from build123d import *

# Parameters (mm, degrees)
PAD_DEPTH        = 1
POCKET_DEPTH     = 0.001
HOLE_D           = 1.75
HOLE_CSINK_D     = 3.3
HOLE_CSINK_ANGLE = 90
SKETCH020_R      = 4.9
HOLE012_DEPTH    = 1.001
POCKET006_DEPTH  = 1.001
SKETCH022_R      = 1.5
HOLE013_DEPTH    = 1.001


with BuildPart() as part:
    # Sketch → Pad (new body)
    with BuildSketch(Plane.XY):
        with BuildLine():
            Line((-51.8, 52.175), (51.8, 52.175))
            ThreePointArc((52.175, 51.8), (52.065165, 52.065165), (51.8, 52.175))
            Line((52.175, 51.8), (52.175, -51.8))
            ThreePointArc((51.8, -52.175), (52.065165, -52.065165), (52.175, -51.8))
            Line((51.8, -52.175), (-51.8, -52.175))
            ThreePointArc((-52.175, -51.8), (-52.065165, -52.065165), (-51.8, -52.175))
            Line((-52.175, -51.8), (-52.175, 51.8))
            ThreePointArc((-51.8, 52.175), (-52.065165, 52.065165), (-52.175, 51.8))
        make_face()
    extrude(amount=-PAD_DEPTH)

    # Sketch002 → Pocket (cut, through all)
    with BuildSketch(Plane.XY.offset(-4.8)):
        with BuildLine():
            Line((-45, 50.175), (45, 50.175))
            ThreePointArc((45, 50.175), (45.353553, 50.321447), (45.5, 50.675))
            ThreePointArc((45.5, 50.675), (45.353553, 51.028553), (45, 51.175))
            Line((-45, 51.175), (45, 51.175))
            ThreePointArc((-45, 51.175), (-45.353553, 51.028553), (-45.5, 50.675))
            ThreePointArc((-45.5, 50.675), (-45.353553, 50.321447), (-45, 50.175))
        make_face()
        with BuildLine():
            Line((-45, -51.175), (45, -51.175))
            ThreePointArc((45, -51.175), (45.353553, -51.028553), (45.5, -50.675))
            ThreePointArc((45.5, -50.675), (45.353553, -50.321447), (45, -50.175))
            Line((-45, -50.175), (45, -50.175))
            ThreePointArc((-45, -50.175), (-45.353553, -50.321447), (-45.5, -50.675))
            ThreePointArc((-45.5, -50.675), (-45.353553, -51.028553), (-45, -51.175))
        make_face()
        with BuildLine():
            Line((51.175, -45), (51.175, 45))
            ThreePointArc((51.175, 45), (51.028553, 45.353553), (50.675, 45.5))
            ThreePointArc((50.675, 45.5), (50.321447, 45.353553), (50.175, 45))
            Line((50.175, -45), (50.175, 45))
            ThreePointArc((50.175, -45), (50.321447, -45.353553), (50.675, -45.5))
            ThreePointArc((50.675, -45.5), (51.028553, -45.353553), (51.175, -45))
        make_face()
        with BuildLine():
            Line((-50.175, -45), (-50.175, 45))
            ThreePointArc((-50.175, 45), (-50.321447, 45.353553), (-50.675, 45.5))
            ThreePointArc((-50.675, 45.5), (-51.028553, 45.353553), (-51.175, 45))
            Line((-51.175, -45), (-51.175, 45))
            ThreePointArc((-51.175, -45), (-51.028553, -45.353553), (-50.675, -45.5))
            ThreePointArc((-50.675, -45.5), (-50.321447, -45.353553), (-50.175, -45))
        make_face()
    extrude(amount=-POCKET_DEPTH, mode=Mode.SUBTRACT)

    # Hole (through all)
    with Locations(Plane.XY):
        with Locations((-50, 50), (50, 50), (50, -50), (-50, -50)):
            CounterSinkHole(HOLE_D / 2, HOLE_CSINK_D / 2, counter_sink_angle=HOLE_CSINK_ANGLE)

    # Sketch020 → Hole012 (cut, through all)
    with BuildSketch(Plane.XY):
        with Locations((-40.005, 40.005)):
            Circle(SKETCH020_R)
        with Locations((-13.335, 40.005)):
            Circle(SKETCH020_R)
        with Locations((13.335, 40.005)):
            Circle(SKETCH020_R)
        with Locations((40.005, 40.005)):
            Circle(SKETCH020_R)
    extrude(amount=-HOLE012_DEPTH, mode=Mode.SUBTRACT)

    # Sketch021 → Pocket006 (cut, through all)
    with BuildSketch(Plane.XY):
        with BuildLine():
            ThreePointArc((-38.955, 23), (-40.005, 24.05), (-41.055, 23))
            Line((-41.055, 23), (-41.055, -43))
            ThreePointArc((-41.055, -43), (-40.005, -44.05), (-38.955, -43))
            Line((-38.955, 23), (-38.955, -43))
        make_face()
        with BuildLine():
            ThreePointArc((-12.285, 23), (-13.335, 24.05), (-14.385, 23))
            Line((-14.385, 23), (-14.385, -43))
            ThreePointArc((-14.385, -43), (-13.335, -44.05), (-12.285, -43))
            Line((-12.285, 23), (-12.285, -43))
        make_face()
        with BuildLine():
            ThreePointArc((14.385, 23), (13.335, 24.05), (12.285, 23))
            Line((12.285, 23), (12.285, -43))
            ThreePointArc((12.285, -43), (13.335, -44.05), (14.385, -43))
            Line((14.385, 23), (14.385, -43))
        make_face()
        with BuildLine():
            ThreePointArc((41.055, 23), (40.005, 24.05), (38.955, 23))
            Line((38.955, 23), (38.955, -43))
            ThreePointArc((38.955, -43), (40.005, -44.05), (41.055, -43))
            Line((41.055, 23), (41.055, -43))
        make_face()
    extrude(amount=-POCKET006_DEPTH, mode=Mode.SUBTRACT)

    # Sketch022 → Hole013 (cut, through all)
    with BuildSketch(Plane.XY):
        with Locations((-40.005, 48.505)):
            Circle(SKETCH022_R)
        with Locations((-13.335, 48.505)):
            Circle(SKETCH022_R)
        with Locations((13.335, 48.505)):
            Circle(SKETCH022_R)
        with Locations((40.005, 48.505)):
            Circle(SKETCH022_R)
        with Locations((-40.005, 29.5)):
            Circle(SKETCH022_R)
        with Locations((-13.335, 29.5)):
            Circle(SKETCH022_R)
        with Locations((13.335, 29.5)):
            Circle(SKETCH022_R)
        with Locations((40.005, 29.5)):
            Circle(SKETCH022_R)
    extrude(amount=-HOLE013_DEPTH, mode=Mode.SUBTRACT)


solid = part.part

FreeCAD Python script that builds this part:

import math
import FreeCAD as App
import Part
import Sketcher
from FreeCAD import Vector
Q = App.Units.Quantity

doc = App.newDocument("Part")
body = doc.addObject("PartDesign::Body", "Body")

# Sketch on XY plane
sketch1 = doc.addObject("Sketcher::SketchObject", "Sketch")
body.addObject(sketch1)
sketch1.AttachmentSupport = (doc.XY_Plane, [""])
sketch1.MapMode = "FlatFace"
sketch1.addGeometry([
    Part.LineSegment(Vector(51.8, 52.175, 0), Vector(-51.8, 52.175, 0)),  # 0
    Part.ArcOfCircle(Part.Circle(Vector(-51.8, 51.8, 0), Vector(0, 0, 1), 0.375), math.radians(90.000022), math.radians(179.999978)),  # 1
    Part.LineSegment(Vector(-52.175, 51.8, 0), Vector(-52.175, -51.8, 0)),  # 2
    Part.ArcOfCircle(Part.Circle(Vector(-51.8, -51.8, 0), Vector(0, 0, 1), 0.375), math.radians(-179.999978), math.radians(-90.000022)),  # 3
    Part.LineSegment(Vector(-51.8, -52.175, 0), Vector(51.8, -52.175, 0)),  # 4
    Part.ArcOfCircle(Part.Circle(Vector(51.8, -51.8, 0), Vector(0, 0, 1), 0.375), math.radians(-89.999978), math.radians(-0.000022)),  # 5
    Part.LineSegment(Vector(52.175, -51.8, 0), Vector(52.175, 51.8, 0)),  # 6
    Part.ArcOfCircle(Part.Circle(Vector(51.8, 51.8, 0), Vector(0, 0, 1), 0.375), math.radians(0.000022), math.radians(89.999978)),  # 7
], False)
sketch1.addConstraint([
    Sketcher.Constraint("Tangent", 0, 2, 1, 1),
    Sketcher.Constraint("Tangent", 1, 2, 2, 1),
    Sketcher.Constraint("Tangent", 2, 2, 3, 1),
    Sketcher.Constraint("Tangent", 3, 2, 4, 1),
    Sketcher.Constraint("Tangent", 4, 2, 5, 1),
    Sketcher.Constraint("Tangent", 5, 2, 6, 1),
    Sketcher.Constraint("Tangent", 6, 2, 7, 1),
    Sketcher.Constraint("Tangent", 7, 2, 0, 1),
    Sketcher.Constraint("Horizontal", 0),
    Sketcher.Constraint("Vertical", 2),
    Sketcher.Constraint("Horizontal", 4),
    Sketcher.Constraint("Vertical", 6),
    Sketcher.Constraint("Equal", 1, 3),
    Sketcher.Constraint("Equal", 3, 5),
    Sketcher.Constraint("Equal", 5, 7),
    Sketcher.Constraint("Symmetric", 1, 3, 5, 3, -1, 1),
    Sketcher.Constraint("Equal", 4, 2),
    Sketcher.Constraint("DistanceX", 0, 2, 0, 1, Q("103.6 mm")),
    Sketcher.Constraint("Radius", 1, Q("0.375 mm")),
])
pad1 = doc.addObject("PartDesign::Pad", "Pad")
body.addObject(pad1)
pad1.Profile = sketch1
pad1.Length = 1
pad1.Reversed = True

# Sketch on XY plane
sketch2 = doc.addObject("Sketcher::SketchObject", "Sketch001")
body.addObject(sketch2)
sketch2.AttachmentSupport = (doc.XY_Plane, [""])
sketch2.MapMode = "FlatFace"
sketch2.AttachmentOffset = App.Placement(Vector(0, 0, -4.8), App.Rotation())
sketch2.addGeometry([
    Part.LineSegment(Vector(-45, 50.175, 0), Vector(45, 50.175, 0)),  # 0
    Part.ArcOfCircle(Part.Circle(Vector(44.999999, 50.675001, 0), Vector(0, 0, 1), 0.500001), math.radians(-89.999847), math.radians(-0.000153)),  # 1
    Part.ArcOfCircle(Part.Circle(Vector(44.999999, 50.674999, 0), Vector(0, 0, 1), 0.500001), math.radians(0.000153), math.radians(89.999847)),  # 2
    Part.LineSegment(Vector(45, 51.175, 0), Vector(-45, 51.175, 0)),  # 3
    Part.ArcOfCircle(Part.Circle(Vector(-44.999999, 50.674999, 0), Vector(0, 0, 1), 0.500001), math.radians(90.000153), math.radians(179.999847)),  # 4
    Part.ArcOfCircle(Part.Circle(Vector(-44.999999, 50.675001, 0), Vector(0, 0, 1), 0.500001), math.radians(-179.999847), math.radians(-90.000153)),  # 5
    Part.LineSegment(Vector(-45, -51.175, 0), Vector(45, -51.175, 0)),  # 6
    Part.ArcOfCircle(Part.Circle(Vector(44.999999, -50.674999, 0), Vector(0, 0, 1), 0.500001), math.radians(-89.999847), math.radians(-0.000153)),  # 7
    Part.ArcOfCircle(Part.Circle(Vector(44.999999, -50.675001, 0), Vector(0, 0, 1), 0.500001), math.radians(0.000153), math.radians(89.999847)),  # 8
    Part.LineSegment(Vector(45, -50.175, 0), Vector(-45, -50.175, 0)),  # 9
    Part.ArcOfCircle(Part.Circle(Vector(-44.999999, -50.675001, 0), Vector(0, 0, 1), 0.500001), math.radians(90.000153), math.radians(179.999847)),  # 10
    Part.ArcOfCircle(Part.Circle(Vector(-44.999999, -50.674999, 0), Vector(0, 0, 1), 0.500001), math.radians(-179.999847), math.radians(-90.000153)),  # 11
    Part.LineSegment(Vector(51.175, -45, 0), Vector(51.175, 45, 0)),  # 12
    Part.ArcOfCircle(Part.Circle(Vector(50.674999, 44.999999, 0), Vector(0, 0, 1), 0.500001), math.radians(0.000153), math.radians(89.999847)),  # 13
    Part.ArcOfCircle(Part.Circle(Vector(50.675001, 44.999999, 0), Vector(0, 0, 1), 0.500001), math.radians(90.000153), math.radians(179.999847)),  # 14
    Part.LineSegment(Vector(50.175, 45, 0), Vector(50.175, -45, 0)),  # 15
    Part.ArcOfCircle(Part.Circle(Vector(50.675001, -44.999999, 0), Vector(0, 0, 1), 0.500001), math.radians(-179.999847), math.radians(-90.000153)),  # 16
    Part.ArcOfCircle(Part.Circle(Vector(50.674999, -44.999999, 0), Vector(0, 0, 1), 0.500001), math.radians(-89.999847), math.radians(-0.000153)),  # 17
    Part.LineSegment(Vector(-50.175, -45, 0), Vector(-50.175, 45, 0)),  # 18
    Part.ArcOfCircle(Part.Circle(Vector(-50.675001, 44.999999, 0), Vector(0, 0, 1), 0.500001), math.radians(0.000153), math.radians(89.999847)),  # 19
    Part.ArcOfCircle(Part.Circle(Vector(-50.674999, 44.999999, 0), Vector(0, 0, 1), 0.500001), math.radians(90.000153), math.radians(179.999847)),  # 20
    Part.LineSegment(Vector(-51.175, 45, 0), Vector(-51.175, -45, 0)),  # 21
    Part.ArcOfCircle(Part.Circle(Vector(-50.674999, -44.999999, 0), Vector(0, 0, 1), 0.500001), math.radians(-179.999847), math.radians(-90.000153)),  # 22
    Part.ArcOfCircle(Part.Circle(Vector(-50.675001, -44.999999, 0), Vector(0, 0, 1), 0.500001), math.radians(-89.999847), math.radians(-0.000153)),  # 23
], False)
sketch2.addConstraint([
    Sketcher.Constraint("Coincident", 0, 2, 1, 1),
    Sketcher.Constraint("Coincident", 1, 2, 2, 1),
    Sketcher.Constraint("Coincident", 2, 2, 3, 1),
    Sketcher.Constraint("Coincident", 3, 2, 4, 1),
    Sketcher.Constraint("Coincident", 4, 2, 5, 1),
    Sketcher.Constraint("Coincident", 5, 2, 0, 1),
    Sketcher.Constraint("Coincident", 6, 2, 7, 1),
    Sketcher.Constraint("Coincident", 7, 2, 8, 1),
    Sketcher.Constraint("Coincident", 8, 2, 9, 1),
    Sketcher.Constraint("Coincident", 9, 2, 10, 1),
    Sketcher.Constraint("Coincident", 10, 2, 11, 1),
    Sketcher.Constraint("Coincident", 11, 2, 6, 1),
    Sketcher.Constraint("Coincident", 12, 2, 13, 1),
    Sketcher.Constraint("Coincident", 13, 2, 14, 1),
    Sketcher.Constraint("Coincident", 14, 2, 15, 1),
    Sketcher.Constraint("Coincident", 15, 2, 16, 1),
    Sketcher.Constraint("Coincident", 16, 2, 17, 1),
    Sketcher.Constraint("Coincident", 17, 2, 12, 1),
    Sketcher.Constraint("Coincident", 18, 2, 19, 1),
    Sketcher.Constraint("Coincident", 19, 2, 20, 1),
    Sketcher.Constraint("Coincident", 20, 2, 21, 1),
    Sketcher.Constraint("Coincident", 21, 2, 22, 1),
    Sketcher.Constraint("Coincident", 22, 2, 23, 1),
    Sketcher.Constraint("Coincident", 23, 2, 18, 1),
    Sketcher.Constraint("Horizontal", 0),
    Sketcher.Constraint("Horizontal", 3),
    Sketcher.Constraint("Horizontal", 6),
    Sketcher.Constraint("Horizontal", 9),
    Sketcher.Constraint("Vertical", 12),
    Sketcher.Constraint("Vertical", 15),
    Sketcher.Constraint("Vertical", 18),
    Sketcher.Constraint("Vertical", 21),
    Sketcher.Constraint("Coincident", 2, 3, 1, 3),
    Sketcher.Constraint("Coincident", 5, 3, 4, 3),
    Sketcher.Constraint("Coincident", 8, 3, 7, 3),
    Sketcher.Constraint("Coincident", 11, 3, 10, 3),
    Sketcher.Constraint("Coincident", 14, 3, 13, 3),
    Sketcher.Constraint("Coincident", 17, 3, 16, 3),
    Sketcher.Constraint("Coincident", 20, 3, 19, 3),
    Sketcher.Constraint("Coincident", 23, 3, 22, 3),
    Sketcher.Constraint("Equal", 5, 7),
    Sketcher.Constraint("Equal", 11, 13),
    Sketcher.Constraint("Equal", 17, 19),
    Sketcher.Constraint("Symmetric", 4, 3, 7, 3, -1, 1),
    Sketcher.Constraint("Symmetric", 16, 3, 19, 3, -1, 1),
    Sketcher.Constraint("Symmetric", 1, 2, 10, 2, -1, 1),
    Sketcher.Constraint("Symmetric", 13, 2, 22, 2, -1, 1),
    Sketcher.Constraint("Symmetric", 1, 2, 4, 2, -2),
    Sketcher.Constraint("Symmetric", 13, 2, 19, 2, -2),
    Sketcher.Constraint("Horizontal", 5, 3, 1, 2),
    Sketcher.Constraint("Horizontal", 11, 3, 7, 2),
    Sketcher.Constraint("Horizontal", 20, 3, 12, 2),
    Sketcher.Constraint("Horizontal", 12, 2, 14, 2),
    Sketcher.Constraint("Horizontal", 23, 3, 15, 2),
    Sketcher.Constraint("Horizontal", 15, 2, 17, 2),
    Sketcher.Constraint("Horizontal", 14, 2, 18, 2),
    Sketcher.Constraint("Horizontal", 18, 2, 20, 2),
    Sketcher.Constraint("Horizontal", 17, 2, 21, 2),
    Sketcher.Constraint("Horizontal", 21, 2, 23, 2),
    Sketcher.Constraint("Vertical", 8, 3, 0, 2),
    Sketcher.Constraint("Vertical", 0, 2, 2, 2),
    Sketcher.Constraint("Vertical", 11, 3, 3, 2),
    Sketcher.Constraint("Vertical", 3, 2, 5, 2),
    Sketcher.Constraint("Vertical", 2, 2, 6, 2),
    Sketcher.Constraint("Vertical", 6, 2, 8, 2),
    Sketcher.Constraint("Vertical", 5, 2, 9, 2),
    Sketcher.Constraint("Vertical", 9, 2, 11, 2),
    Sketcher.Constraint("Vertical", 17, 3, 13, 2),
    Sketcher.Constraint("Vertical", 13, 2, 16, 2),
    Sketcher.Constraint("Equal", 9, 12),
    Sketcher.Constraint("Radius", 1, Q("0.500001 mm")),
    Sketcher.Constraint("DistanceX", 0, 1, 0, 2, Q("90 mm")),
    Sketcher.Constraint("DistanceY", 7, 3, 1, 3, Q("101.35 mm")),
    Sketcher.Constraint("DistanceX", -1, 1, 13, 3, Q("50.674999 mm")),
])
pocket1 = doc.addObject("PartDesign::Pocket", "Pocket")
body.addObject(pocket1)
pocket1.Profile = sketch2
pocket1.Type = "ThroughAll"

# Sketch on XY plane
sketch3 = doc.addObject("Sketcher::SketchObject", "Sketch002")
body.addObject(sketch3)
sketch3.AttachmentSupport = (doc.XY_Plane, [""])
sketch3.MapMode = "FlatFace"
sketch3.addGeometry([
    Part.Circle(Vector(-50, 50, 0), Vector(0, 0, 1), 0.875),
    Part.Circle(Vector(50, 50, 0), Vector(0, 0, 1), 0.875),
    Part.Circle(Vector(50, -50, 0), Vector(0, 0, 1), 0.875),
    Part.Circle(Vector(-50, -50, 0), Vector(0, 0, 1), 0.875),
], False)
sketch3.addConstraint([
    Sketcher.Constraint("Equal", 0, 1),
    Sketcher.Constraint("Equal", 1, 2),
    Sketcher.Constraint("Equal", 2, 3),
    Sketcher.Constraint("Symmetric", 0, 3, 2, 3, -1, 1),
    Sketcher.Constraint("Symmetric", 1, 3, 3, 3, -1, 1),
    Sketcher.Constraint("Symmetric", 0, 3, 1, 3, -2),
    Sketcher.Constraint("Diameter", 0, Q("1.75 mm")),
    Sketcher.Constraint("DistanceX", 0, 3, -1, 1, Q("50 mm")),
    Sketcher.Constraint("DistanceY", -1, 1, 0, 3, Q("50 mm")),
])
doc.recompute()
hole = doc.addObject("PartDesign::Hole", "Hole")
body.addObject(hole)
hole.Profile = sketch3
hole.ThreadType = "None"
hole.Diameter = 1.75
hole.DepthType = "ThroughAll"
hole.HoleCutType = "Countersink"
hole.HoleCutDiameter = 3.3
hole.HoleCutCountersinkAngle = 90

# Sketch on XY plane
sketch4 = doc.addObject("Sketcher::SketchObject", "Sketch003")
body.addObject(sketch4)
sketch4.AttachmentSupport = (doc.XY_Plane, [""])
sketch4.MapMode = "FlatFace"
sketch4.addGeometry([
    Part.Circle(Vector(-40.005, 40.005, 0), Vector(0, 0, 1), 4.9),
    Part.Circle(Vector(-13.335, 40.005, 0), Vector(0, 0, 1), 4.9),
    Part.Circle(Vector(13.335, 40.005, 0), Vector(0, 0, 1), 4.9),
    Part.Circle(Vector(40.005, 40.005, 0), Vector(0, 0, 1), 4.9),
], False)
sketch4.addConstraint([
    Sketcher.Constraint("Equal", 0, 1),
    Sketcher.Constraint("Equal", 1, 2),
    Sketcher.Constraint("Equal", 2, 3),
    Sketcher.Constraint("Symmetric", 1, 3, 2, 3, -2),
    Sketcher.Constraint("Symmetric", 0, 3, 3, 3, -2),
    Sketcher.Constraint("Horizontal", 0, 3, 1, 3),
    Sketcher.Constraint("Diameter", 0, Q("9.8 mm")),
    Sketcher.Constraint("DistanceX", 0, 3, 1, 3, Q("26.67 mm")),
    Sketcher.Constraint("DistanceX", 1, 3, 2, 3, Q("26.67 mm")),
    Sketcher.Constraint("DistanceY", -1, 1, 0, 3, Q("40.005 mm")),
])
pocket2 = doc.addObject("PartDesign::Pocket", "Pocket001")
body.addObject(pocket2)
pocket2.Profile = sketch4
pocket2.Type = "ThroughAll"

# Sketch on XY plane
sketch5 = doc.addObject("Sketcher::SketchObject", "Sketch004")
body.addObject(sketch5)
sketch5.AttachmentSupport = (doc.XY_Plane, [""])
sketch5.MapMode = "FlatFace"
sketch5.addGeometry([
    Part.ArcOfCircle(Part.Circle(Vector(-40.005, 23, 0), Vector(0, 0, 1), 1.05), math.radians(0), math.radians(180)),  # 0
    Part.LineSegment(Vector(-41.055, 23, 0), Vector(-41.055, -43, 0)),  # 1
    Part.ArcOfCircle(Part.Circle(Vector(-40.005, -43, 0), Vector(0, 0, 1), 1.05), math.radians(180), math.radians(360)),  # 2
    Part.LineSegment(Vector(-38.955, -43, 0), Vector(-38.955, 23, 0)),  # 3
    Part.ArcOfCircle(Part.Circle(Vector(-13.335, 23, 0), Vector(0, 0, 1), 1.05), math.radians(0), math.radians(180)),  # 4
    Part.LineSegment(Vector(-14.385, 23, 0), Vector(-14.385, -43, 0)),  # 5
    Part.ArcOfCircle(Part.Circle(Vector(-13.335, -43, 0), Vector(0, 0, 1), 1.05), math.radians(180), math.radians(360)),  # 6
    Part.LineSegment(Vector(-12.285, -43, 0), Vector(-12.285, 23, 0)),  # 7
    Part.ArcOfCircle(Part.Circle(Vector(13.335, 23, 0), Vector(0, 0, 1), 1.05), math.radians(0), math.radians(180)),  # 8
    Part.LineSegment(Vector(12.285, 23, 0), Vector(12.285, -43, 0)),  # 9
    Part.ArcOfCircle(Part.Circle(Vector(13.335, -43, 0), Vector(0, 0, 1), 1.05), math.radians(180), math.radians(360)),  # 10
    Part.LineSegment(Vector(14.385, -43, 0), Vector(14.385, 23, 0)),  # 11
    Part.ArcOfCircle(Part.Circle(Vector(40.005, 23, 0), Vector(0, 0, 1), 1.05), math.radians(0), math.radians(180)),  # 12
    Part.LineSegment(Vector(38.955, 23, 0), Vector(38.955, -43, 0)),  # 13
    Part.ArcOfCircle(Part.Circle(Vector(40.005, -43, 0), Vector(0, 0, 1), 1.05), math.radians(180), math.radians(360)),  # 14
    Part.LineSegment(Vector(41.055, -43, 0), Vector(41.055, 23, 0)),  # 15
], False)
sketch5.addConstraint([
    Sketcher.Constraint("Tangent", 0, 2, 1, 1),
    Sketcher.Constraint("Tangent", 1, 2, 2, 1),
    Sketcher.Constraint("Tangent", 2, 2, 3, 1),
    Sketcher.Constraint("Tangent", 3, 2, 0, 1),
    Sketcher.Constraint("Tangent", 4, 2, 5, 1),
    Sketcher.Constraint("Tangent", 5, 2, 6, 1),
    Sketcher.Constraint("Tangent", 6, 2, 7, 1),
    Sketcher.Constraint("Tangent", 7, 2, 4, 1),
    Sketcher.Constraint("Tangent", 8, 2, 9, 1),
    Sketcher.Constraint("Tangent", 9, 2, 10, 1),
    Sketcher.Constraint("Tangent", 10, 2, 11, 1),
    Sketcher.Constraint("Tangent", 11, 2, 8, 1),
    Sketcher.Constraint("Tangent", 12, 2, 13, 1),
    Sketcher.Constraint("Tangent", 13, 2, 14, 1),
    Sketcher.Constraint("Tangent", 14, 2, 15, 1),
    Sketcher.Constraint("Tangent", 15, 2, 12, 1),
    Sketcher.Constraint("Vertical", 1),
    Sketcher.Constraint("Vertical", 3),
    Sketcher.Constraint("Vertical", 5),
    Sketcher.Constraint("Vertical", 7),
    Sketcher.Constraint("Vertical", 9),
    Sketcher.Constraint("Vertical", 11),
    Sketcher.Constraint("Vertical", 13),
    Sketcher.Constraint("Vertical", 15),
    Sketcher.Constraint("Equal", 2, 4),
    Sketcher.Constraint("Equal", 6, 8),
    Sketcher.Constraint("Equal", 10, 12),
    Sketcher.Constraint("Symmetric", 4, 3, 8, 3, -2),
    Sketcher.Constraint("Symmetric", 0, 3, 12, 3, -2),
    Sketcher.Constraint("Horizontal", 0, 3, 4, 3),
    Sketcher.Constraint("Horizontal", 2, 3, 6, 3),
    Sketcher.Constraint("Horizontal", 6, 3, 10, 3),
    Sketcher.Constraint("Horizontal", 10, 3, 14, 3),
    Sketcher.Constraint("DistanceY", 1, 2, 1, 1, Q("66 mm")),
    Sketcher.Constraint("Radius", 0, Q("1.05 mm")),
    Sketcher.Constraint("DistanceY", -1, 1, 0, 3, Q("23 mm")),
    Sketcher.Constraint("DistanceX", 0, 3, 4, 3, Q("26.67 mm")),
    Sketcher.Constraint("DistanceX", 4, 3, 8, 3, Q("26.67 mm")),
])
pocket3 = doc.addObject("PartDesign::Pocket", "Pocket002")
body.addObject(pocket3)
pocket3.Profile = sketch5
pocket3.Type = "ThroughAll"

# Sketch on XY plane
sketch6 = doc.addObject("Sketcher::SketchObject", "Sketch005")
body.addObject(sketch6)
sketch6.AttachmentSupport = (doc.XY_Plane, [""])
sketch6.MapMode = "FlatFace"
sketch6.addGeometry([
    Part.Circle(Vector(-40.005, 48.505, 0), Vector(0, 0, 1), 1.5),  # 0
    Part.Circle(Vector(-13.335, 48.505, 0), Vector(0, 0, 1), 1.5),  # 1
    Part.Circle(Vector(13.335, 48.505, 0), Vector(0, 0, 1), 1.5),  # 2
    Part.Circle(Vector(40.005, 48.505, 0), Vector(0, 0, 1), 1.5),  # 3
    Part.Circle(Vector(-40.005, 29.5, 0), Vector(0, 0, 1), 1.5),  # 4
    Part.Circle(Vector(-13.335, 29.5, 0), Vector(0, 0, 1), 1.5),  # 5
    Part.Circle(Vector(13.335, 29.5, 0), Vector(0, 0, 1), 1.5),  # 6
    Part.Circle(Vector(40.005, 29.5, 0), Vector(0, 0, 1), 1.5),  # 7
], False)
sketch6.addConstraint([
    Sketcher.Constraint("Equal", 0, 1),
    Sketcher.Constraint("Equal", 1, 2),
    Sketcher.Constraint("Equal", 2, 3),
    Sketcher.Constraint("Equal", 3, 4),
    Sketcher.Constraint("Equal", 4, 5),
    Sketcher.Constraint("Equal", 5, 6),
    Sketcher.Constraint("Equal", 6, 7),
    Sketcher.Constraint("Symmetric", 1, 3, 2, 3, -2),
    Sketcher.Constraint("Symmetric", 0, 3, 3, 3, -2),
    Sketcher.Constraint("Symmetric", 5, 3, 6, 3, -2),
    Sketcher.Constraint("Symmetric", 4, 3, 7, 3, -2),
    Sketcher.Constraint("Horizontal", 0, 3, 1, 3),
    Sketcher.Constraint("Horizontal", 4, 3, 5, 3),
    Sketcher.Constraint("Vertical", 0, 3, 4, 3),
    Sketcher.Constraint("Vertical", 1, 3, 5, 3),
    Sketcher.Constraint("Diameter", 0, Q("3 mm")),
    Sketcher.Constraint("DistanceY", -1, 1, 4, 3, Q("29.5 mm")),
    Sketcher.Constraint("DistanceX", 0, 3, 1, 3, Q("26.67 mm")),
    Sketcher.Constraint("DistanceX", 1, 3, 2, 3, Q("26.67 mm")),
    Sketcher.Constraint("DistanceY", -1, 1, 0, 3, Q("48.505 mm")),
])
pocket4 = doc.addObject("PartDesign::Pocket", "Pocket003")
body.addObject(pocket4)
pocket4.Profile = sketch6
pocket4.Type = "ThroughAll"

doc.recompute()
